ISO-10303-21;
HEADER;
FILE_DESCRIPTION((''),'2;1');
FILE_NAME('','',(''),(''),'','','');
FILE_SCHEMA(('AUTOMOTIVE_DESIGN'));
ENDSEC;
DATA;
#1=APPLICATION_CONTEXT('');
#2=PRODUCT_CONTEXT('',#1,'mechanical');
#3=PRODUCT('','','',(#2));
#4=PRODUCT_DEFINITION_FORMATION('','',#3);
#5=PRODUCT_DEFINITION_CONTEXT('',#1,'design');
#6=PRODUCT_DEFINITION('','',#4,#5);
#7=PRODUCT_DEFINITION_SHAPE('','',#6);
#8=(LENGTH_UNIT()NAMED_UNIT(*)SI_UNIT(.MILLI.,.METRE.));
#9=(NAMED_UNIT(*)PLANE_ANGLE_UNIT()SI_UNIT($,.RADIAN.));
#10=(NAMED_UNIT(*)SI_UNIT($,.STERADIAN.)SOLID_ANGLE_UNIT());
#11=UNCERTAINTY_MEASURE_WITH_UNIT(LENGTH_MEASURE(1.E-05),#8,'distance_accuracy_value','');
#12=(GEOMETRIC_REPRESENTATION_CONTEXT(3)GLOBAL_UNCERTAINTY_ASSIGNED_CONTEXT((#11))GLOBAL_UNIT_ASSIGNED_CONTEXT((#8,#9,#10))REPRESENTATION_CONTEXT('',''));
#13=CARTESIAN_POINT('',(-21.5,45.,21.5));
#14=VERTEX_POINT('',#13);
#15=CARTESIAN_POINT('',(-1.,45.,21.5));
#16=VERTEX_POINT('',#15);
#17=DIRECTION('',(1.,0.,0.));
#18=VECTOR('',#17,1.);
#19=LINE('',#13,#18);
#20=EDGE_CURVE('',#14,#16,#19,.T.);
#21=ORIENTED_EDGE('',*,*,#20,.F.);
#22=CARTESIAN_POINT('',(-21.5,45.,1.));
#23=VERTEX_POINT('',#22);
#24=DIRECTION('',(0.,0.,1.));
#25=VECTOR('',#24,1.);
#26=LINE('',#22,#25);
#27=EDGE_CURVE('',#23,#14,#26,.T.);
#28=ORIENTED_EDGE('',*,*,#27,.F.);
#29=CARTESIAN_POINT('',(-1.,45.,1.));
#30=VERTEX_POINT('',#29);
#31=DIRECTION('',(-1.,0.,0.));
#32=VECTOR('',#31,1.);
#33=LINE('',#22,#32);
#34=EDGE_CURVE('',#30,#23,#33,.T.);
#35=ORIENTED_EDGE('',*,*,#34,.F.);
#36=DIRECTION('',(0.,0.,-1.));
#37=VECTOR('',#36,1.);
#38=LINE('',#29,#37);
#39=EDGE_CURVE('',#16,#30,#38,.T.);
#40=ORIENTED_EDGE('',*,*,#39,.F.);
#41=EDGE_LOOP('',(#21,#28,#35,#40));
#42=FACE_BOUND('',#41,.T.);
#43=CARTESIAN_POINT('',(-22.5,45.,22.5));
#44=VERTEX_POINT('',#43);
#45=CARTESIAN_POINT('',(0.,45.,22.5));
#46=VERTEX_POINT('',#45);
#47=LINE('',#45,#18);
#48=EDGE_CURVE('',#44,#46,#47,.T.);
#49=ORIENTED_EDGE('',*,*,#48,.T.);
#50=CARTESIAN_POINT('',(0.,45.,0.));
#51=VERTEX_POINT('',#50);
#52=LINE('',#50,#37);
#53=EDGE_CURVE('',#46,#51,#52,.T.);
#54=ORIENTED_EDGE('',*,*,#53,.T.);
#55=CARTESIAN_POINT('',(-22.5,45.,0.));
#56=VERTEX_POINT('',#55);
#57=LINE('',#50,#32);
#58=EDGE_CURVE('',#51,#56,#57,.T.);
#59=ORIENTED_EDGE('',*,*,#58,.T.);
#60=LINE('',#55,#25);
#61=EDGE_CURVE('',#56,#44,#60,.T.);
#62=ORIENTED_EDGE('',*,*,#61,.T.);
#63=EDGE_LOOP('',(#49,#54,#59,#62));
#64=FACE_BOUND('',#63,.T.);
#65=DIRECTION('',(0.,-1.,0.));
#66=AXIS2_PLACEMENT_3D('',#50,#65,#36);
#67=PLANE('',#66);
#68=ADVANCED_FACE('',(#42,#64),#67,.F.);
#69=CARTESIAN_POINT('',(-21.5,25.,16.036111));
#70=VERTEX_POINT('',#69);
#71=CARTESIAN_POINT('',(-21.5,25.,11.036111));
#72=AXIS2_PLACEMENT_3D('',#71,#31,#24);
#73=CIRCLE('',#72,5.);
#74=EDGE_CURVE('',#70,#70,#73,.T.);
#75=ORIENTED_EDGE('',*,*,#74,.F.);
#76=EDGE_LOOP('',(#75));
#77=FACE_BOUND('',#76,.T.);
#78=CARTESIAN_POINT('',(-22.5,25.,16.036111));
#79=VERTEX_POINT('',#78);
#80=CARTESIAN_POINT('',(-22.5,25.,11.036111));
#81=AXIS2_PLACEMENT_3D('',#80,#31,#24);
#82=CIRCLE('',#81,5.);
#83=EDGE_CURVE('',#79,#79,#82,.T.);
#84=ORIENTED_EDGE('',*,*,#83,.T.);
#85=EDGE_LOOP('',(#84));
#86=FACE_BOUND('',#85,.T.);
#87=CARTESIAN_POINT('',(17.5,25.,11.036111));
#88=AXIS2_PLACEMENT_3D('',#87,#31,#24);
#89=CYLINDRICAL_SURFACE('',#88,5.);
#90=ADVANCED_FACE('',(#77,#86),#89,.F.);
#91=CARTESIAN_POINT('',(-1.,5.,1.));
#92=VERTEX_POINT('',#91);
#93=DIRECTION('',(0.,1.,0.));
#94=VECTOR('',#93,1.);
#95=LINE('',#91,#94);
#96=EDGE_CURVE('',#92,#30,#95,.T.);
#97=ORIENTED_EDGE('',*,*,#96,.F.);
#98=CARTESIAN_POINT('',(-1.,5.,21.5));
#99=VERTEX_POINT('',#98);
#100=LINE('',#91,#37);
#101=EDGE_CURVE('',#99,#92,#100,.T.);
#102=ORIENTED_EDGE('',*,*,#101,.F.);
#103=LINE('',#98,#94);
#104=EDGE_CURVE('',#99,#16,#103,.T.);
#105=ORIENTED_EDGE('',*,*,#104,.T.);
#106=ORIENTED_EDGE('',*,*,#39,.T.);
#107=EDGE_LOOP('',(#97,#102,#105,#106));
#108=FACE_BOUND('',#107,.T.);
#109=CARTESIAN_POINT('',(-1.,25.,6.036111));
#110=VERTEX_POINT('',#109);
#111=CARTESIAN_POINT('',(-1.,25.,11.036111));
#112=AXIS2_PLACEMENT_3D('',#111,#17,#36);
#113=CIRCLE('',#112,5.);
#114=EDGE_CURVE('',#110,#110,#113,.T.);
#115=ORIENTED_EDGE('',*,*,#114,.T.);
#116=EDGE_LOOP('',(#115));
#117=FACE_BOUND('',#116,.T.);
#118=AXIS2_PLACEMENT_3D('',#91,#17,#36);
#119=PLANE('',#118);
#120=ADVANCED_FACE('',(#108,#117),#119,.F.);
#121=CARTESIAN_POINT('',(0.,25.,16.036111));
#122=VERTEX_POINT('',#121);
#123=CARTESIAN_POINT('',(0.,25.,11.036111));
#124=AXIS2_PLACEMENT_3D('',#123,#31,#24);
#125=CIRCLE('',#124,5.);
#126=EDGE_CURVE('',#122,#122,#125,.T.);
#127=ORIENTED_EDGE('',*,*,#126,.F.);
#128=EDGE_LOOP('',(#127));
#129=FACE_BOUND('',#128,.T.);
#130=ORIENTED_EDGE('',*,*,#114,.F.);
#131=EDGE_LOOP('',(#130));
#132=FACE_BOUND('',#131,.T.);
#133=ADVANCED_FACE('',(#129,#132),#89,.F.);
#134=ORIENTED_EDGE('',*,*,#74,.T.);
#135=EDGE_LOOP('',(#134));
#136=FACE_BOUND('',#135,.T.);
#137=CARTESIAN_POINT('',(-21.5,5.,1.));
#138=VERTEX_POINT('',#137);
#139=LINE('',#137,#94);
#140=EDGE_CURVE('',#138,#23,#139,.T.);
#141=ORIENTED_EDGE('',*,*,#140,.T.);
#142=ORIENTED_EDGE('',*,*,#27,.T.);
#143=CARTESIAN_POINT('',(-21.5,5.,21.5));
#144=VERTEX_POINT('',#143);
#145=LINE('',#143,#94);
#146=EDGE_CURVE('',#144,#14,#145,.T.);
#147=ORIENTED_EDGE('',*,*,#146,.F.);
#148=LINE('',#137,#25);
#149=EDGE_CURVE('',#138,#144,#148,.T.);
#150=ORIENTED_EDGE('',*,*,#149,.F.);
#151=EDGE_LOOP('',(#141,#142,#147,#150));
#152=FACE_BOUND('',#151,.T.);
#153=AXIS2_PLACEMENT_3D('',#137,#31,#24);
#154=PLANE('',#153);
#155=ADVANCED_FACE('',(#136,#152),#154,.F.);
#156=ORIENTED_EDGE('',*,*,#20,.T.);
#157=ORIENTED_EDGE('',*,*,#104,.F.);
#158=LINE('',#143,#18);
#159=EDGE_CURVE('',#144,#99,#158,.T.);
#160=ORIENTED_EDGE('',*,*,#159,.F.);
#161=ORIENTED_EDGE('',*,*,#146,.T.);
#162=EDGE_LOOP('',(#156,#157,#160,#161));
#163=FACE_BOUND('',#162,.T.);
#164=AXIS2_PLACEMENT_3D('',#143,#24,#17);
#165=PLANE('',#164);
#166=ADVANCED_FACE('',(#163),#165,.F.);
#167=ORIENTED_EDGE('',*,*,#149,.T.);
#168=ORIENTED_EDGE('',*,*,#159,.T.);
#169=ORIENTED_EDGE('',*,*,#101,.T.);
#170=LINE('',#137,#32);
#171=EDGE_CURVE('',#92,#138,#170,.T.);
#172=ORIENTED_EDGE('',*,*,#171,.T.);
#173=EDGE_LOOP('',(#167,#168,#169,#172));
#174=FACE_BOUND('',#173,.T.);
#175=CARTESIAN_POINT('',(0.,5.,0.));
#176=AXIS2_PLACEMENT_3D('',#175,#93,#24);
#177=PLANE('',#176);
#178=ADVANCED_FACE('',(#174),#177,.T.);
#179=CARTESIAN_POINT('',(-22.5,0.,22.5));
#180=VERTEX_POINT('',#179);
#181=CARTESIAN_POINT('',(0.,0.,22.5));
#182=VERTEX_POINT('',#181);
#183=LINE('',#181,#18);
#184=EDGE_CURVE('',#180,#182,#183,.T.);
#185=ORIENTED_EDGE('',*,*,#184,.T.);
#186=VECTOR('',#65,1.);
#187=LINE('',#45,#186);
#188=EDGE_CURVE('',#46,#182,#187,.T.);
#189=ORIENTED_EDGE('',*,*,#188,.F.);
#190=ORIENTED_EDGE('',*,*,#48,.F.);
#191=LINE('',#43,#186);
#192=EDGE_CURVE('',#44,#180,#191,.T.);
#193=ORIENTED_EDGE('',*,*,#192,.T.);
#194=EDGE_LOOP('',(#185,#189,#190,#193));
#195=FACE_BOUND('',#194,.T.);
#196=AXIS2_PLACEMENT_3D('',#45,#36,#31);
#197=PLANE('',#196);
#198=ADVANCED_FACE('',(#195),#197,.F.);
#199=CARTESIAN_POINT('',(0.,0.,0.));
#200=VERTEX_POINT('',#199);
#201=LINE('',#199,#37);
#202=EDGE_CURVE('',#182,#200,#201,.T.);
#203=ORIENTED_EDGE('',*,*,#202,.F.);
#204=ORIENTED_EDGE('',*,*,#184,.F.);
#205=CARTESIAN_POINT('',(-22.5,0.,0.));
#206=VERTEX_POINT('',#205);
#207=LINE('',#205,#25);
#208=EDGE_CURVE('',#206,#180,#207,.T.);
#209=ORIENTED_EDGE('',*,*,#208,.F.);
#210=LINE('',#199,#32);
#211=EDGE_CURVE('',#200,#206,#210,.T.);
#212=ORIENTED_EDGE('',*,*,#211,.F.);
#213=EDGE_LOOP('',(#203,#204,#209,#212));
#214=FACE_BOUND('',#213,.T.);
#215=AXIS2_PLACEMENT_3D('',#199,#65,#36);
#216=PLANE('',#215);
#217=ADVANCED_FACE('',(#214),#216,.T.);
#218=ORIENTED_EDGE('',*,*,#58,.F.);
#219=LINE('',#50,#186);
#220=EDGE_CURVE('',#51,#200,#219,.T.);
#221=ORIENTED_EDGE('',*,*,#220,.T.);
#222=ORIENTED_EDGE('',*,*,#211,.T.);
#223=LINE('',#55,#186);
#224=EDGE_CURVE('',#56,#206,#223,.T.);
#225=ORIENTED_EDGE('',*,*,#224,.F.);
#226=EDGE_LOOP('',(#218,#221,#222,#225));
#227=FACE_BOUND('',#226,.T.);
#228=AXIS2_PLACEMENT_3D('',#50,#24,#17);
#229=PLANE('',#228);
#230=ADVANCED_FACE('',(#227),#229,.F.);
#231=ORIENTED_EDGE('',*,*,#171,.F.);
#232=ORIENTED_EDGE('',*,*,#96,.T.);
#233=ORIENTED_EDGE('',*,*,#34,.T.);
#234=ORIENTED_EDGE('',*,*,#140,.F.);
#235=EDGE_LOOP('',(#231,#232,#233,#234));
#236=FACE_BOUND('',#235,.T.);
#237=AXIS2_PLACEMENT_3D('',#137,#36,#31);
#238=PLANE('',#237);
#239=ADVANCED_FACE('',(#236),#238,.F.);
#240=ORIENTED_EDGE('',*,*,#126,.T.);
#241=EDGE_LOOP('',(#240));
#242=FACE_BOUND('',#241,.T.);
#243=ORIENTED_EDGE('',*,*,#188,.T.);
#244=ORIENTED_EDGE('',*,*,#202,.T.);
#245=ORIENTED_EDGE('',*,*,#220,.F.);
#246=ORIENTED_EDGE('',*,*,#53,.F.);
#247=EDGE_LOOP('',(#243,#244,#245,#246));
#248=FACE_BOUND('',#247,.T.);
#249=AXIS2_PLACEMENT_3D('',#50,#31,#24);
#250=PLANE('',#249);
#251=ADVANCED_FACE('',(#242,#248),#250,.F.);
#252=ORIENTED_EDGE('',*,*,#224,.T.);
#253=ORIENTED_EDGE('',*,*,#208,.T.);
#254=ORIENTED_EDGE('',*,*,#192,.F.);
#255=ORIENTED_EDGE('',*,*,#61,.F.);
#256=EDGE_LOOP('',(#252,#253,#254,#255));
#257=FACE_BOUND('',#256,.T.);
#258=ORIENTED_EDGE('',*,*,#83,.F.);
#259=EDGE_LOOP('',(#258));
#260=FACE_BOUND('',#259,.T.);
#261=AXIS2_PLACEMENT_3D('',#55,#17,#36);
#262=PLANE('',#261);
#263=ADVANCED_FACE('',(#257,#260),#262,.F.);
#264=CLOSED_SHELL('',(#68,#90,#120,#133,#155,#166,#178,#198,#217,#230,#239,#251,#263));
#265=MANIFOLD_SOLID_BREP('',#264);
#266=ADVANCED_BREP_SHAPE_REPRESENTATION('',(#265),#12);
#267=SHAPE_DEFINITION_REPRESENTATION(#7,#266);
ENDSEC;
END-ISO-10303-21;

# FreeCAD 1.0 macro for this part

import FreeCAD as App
import Part
import Sketcher
from FreeCAD import Vector


def add_polygon(sketch, points):
    """Adds a closed chain of lines whose ends are joined by coincident constraints."""
    first, n = sketch.GeometryCount, len(points)
    for a, b in zip(points, points[1:] + points[:1]):
        sketch.addGeometry(Part.LineSegment(App.Vector(*a, 0), App.Vector(*b, 0)), False)
    for i in range(n):
        sketch.addConstraint(Sketcher.Constraint("Coincident", first + i, 2, first + (i + 1) % n, 1))

doc = App.newDocument("Part")
body = doc.addObject("PartDesign::Body", "Body")

# Sketch on XZ plane
sketch1 = body.newObject("Sketcher::SketchObject", "Sketch")
sketch1.AttachmentSupport = (doc.getObject("XZ_Plane"), [""])
sketch1.MapMode = "FlatFace"
add_polygon(sketch1, [(-22.5, 0), (-22.5, 22.5), (0, 22.5), (0, 0)])  # lines 0-3
sketch1.addConstraint(Sketcher.Constraint("Vertical", 0))
sketch1.addConstraint(Sketcher.Constraint("Horizontal", 1))
sketch1.addConstraint(Sketcher.Constraint("Vertical", 2))
sketch1.addConstraint(Sketcher.Constraint("Horizontal", 3))
sketch1.addConstraint(Sketcher.Constraint("Coincident", 2, 2, -1, 1))
sketch1.addConstraint(Sketcher.Constraint("Equal", 3, 0))
sketch1.addConstraint(Sketcher.Constraint("DistanceX", 1, 1, 1, 2, 22.5))
pad1 = body.newObject("PartDesign::Pad", "Pad")
pad1.Profile = sketch1
pad1.Length = 45
pad1.Reversed = True

# Sketch on XZ plane
sketch2 = body.newObject("Sketcher::SketchObject", "Sketch001")
sketch2.AttachmentSupport = (doc.getObject("XZ_Plane"), [""])
sketch2.MapMode = "FlatFace"
sketch2.AttachmentOffset = App.Placement(Vector(0, 0, -45), App.Rotation())
add_polygon(sketch2, [(-21.5, 1), (-21.5, 21.5), (-1, 21.5), (-1, 1)])  # lines 0-3
sketch2.addConstraint(Sketcher.Constraint("Vertical", 0))
sketch2.addConstraint(Sketcher.Constraint("Horizontal", 1))
sketch2.addConstraint(Sketcher.Constraint("Vertical", 2))
sketch2.addConstraint(Sketcher.Constraint("Horizontal", 3))
sketch2.addConstraint(Sketcher.Constraint("Equal", 3, 0))
sketch2.addConstraint(Sketcher.Constraint("DistanceX", 1, 1, 1, 2, 20.5))
sketch2.addConstraint(Sketcher.Constraint("DistanceX", 1, 2, -1, 1, 1.0))
sketch2.addConstraint(Sketcher.Constraint("DistanceY", -1, 1, 2, 2, 1.0))
pocket1 = body.newObject("PartDesign::Pocket", "Pocket")
pocket1.Profile = sketch2
pocket1.Length = 40
pocket1.Reversed = True

# Sketch on YZ plane
sketch3 = body.newObject("Sketcher::SketchObject", "Sketch002")
sketch3.AttachmentSupport = (doc.getObject("YZ_Plane"), [""])
sketch3.MapMode = "FlatFace"
sketch3.AttachmentOffset = App.Placement(Vector(0, 0, -22.5), App.Rotation())
sketch3.addGeometry(Part.Circle(Vector(25, 11.036111, 0), Vector(0, 0, 1), 5), False)
sketch3.addConstraint(Sketcher.Constraint("Diameter", 0, 10.0))
sketch3.addConstraint(Sketcher.Constraint("DistanceX", -1, 1, 0, 3, 25.0))
sketch3.addConstraint(Sketcher.Constraint("DistanceY", -1, 1, 0, 3, 11.036111))
pocket2 = body.newObject("PartDesign::Pocket", "Pocket001")
pocket2.Profile = sketch3
pocket2.Length = 40
pocket2.Reversed = True

doc.recompute()
